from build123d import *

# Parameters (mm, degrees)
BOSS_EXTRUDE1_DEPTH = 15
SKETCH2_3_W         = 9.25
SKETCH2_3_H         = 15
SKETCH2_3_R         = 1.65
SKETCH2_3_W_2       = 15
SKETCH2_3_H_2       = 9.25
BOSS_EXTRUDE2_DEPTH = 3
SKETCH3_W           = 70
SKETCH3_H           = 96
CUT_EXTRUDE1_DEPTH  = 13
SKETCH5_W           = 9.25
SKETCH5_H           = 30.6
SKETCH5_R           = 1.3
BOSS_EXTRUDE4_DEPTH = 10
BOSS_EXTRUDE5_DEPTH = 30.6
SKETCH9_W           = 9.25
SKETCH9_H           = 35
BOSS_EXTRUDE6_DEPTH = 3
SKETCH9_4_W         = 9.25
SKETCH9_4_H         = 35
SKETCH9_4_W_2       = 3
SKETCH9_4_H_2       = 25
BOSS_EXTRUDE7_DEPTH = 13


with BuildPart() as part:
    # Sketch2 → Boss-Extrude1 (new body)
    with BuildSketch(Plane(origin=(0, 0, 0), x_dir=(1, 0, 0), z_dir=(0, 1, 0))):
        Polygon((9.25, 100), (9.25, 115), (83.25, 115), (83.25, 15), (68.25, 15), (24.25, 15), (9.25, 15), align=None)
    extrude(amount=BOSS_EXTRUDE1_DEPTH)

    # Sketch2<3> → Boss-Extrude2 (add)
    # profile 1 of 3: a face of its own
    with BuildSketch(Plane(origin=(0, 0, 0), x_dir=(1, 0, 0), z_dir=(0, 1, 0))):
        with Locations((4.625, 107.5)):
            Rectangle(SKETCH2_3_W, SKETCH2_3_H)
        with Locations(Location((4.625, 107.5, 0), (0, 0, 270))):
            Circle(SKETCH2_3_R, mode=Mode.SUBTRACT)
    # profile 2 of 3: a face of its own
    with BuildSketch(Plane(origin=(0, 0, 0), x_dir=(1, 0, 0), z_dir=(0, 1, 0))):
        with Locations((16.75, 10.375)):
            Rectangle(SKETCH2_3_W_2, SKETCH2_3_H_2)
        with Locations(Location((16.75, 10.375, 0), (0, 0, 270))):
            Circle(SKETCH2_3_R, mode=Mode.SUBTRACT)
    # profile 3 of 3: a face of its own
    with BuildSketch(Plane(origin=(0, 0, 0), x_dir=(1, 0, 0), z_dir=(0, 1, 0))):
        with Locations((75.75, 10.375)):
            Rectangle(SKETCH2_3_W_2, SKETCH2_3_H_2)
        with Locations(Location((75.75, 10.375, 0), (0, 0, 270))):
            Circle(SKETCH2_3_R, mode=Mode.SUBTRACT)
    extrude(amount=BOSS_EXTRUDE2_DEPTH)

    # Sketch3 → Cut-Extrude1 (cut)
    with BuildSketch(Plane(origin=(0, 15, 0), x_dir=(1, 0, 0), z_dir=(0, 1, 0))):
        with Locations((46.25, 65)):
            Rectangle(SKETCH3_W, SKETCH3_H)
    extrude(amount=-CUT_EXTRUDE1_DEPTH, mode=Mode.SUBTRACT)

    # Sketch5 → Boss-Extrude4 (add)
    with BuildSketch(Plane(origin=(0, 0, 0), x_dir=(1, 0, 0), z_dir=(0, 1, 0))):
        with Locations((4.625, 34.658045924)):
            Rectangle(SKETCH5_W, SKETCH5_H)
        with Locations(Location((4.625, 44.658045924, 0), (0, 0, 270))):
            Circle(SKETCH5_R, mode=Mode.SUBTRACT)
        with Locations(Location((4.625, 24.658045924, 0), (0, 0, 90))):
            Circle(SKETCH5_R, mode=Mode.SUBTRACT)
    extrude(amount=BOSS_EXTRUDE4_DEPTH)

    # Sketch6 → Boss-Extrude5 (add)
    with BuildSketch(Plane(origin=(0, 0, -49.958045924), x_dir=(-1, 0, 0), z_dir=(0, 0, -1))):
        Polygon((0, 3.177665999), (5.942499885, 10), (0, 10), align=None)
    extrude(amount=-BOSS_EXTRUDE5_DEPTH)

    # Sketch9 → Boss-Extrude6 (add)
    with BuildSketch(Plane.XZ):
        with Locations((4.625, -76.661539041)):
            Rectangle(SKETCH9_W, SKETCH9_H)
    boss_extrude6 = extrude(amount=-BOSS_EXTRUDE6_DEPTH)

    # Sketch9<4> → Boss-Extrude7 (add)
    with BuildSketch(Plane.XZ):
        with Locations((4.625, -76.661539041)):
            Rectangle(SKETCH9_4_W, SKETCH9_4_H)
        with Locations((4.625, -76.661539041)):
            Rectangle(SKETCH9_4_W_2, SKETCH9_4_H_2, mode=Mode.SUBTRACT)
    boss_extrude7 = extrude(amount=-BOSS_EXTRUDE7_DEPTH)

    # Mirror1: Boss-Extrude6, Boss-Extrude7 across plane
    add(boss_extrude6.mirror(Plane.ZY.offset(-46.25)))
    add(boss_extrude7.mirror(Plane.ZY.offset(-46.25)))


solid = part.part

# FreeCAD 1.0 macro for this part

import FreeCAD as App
import Part
import Sketcher

doc = App.newDocument("Part")
params = doc.addObject("Spreadsheet::Sheet", "Params")
for row, (alias, value) in enumerate([
    ("sketch1_width", "74 mm"),
    ("sketch1_height", "100 mm"),
    ("pad1_length", "15 mm"),
    ("sketch2_diameter", "3.3 mm"),
    ("sketch2_width", "15 mm"),
    ("sketch2_width2", "9.25 mm"),
    ("pad2_length", "3 mm"),
    ("sketch3_width", "70 mm"),
    ("sketch3_height", "96 mm"),
    ("pocket1_length", "13 mm"),
    ("sketch4_diameter", "2.6 mm"),
    ("sketch4_height", "30.6 mm"),
    ("sketch4_width", "9.25 mm"),
    ("pad3_length", "10 mm"),
    ("pad4_length", "30.6 mm"),
    ("sketch6_height", "35 mm"),
    ("sketch6_width", "9.25 mm"),
    ("pad5_length", "3 mm"),
    ("sketch7_width", "3 mm"),
    ("sketch7_height", "35 mm"),
    ("sketch7_height2", "25 mm"),
    ("sketch7_width2", "9.25 mm"),
    ("pad6_length", "13 mm"),
], start=1):
    params.set(f"A{row}", alias)
    params.set(f"B{row}", "=" + value)
    params.setAlias(f"B{row}", alias)

body = doc.addObject("PartDesign::Body", "Body")

# Sketch on XZ plane
sketch1 = body.newObject("Sketcher::SketchObject", "Sketch")
sketch1.AttachmentSupport = (doc.getObject("XZ_Plane"), [""])
sketch1.MapMode = "FlatFace"
sketch1.addGeometry(Part.LineSegment(App.Vector(9, -115, 0), App.Vector(9, -15, 0)), False)
sketch1.addGeometry(Part.LineSegment(App.Vector(9, -15, 0), App.Vector(83, -15, 0)), False)
sketch1.addGeometry(Part.LineSegment(App.Vector(83, -15, 0), App.Vector(83, -115, 0)), False)
sketch1.addGeometry(Part.LineSegment(App.Vector(83, -115, 0), App.Vector(9, -115, 0)), False)
sketch1.addConstraint(Sketcher.Constraint("Coincident", 0, 2, 1, 1))
sketch1.addConstraint(Sketcher.Constraint("Coincident", 1, 2, 2, 1))
sketch1.addConstraint(Sketcher.Constraint("Coincident", 2, 2, 3, 1))
sketch1.addConstraint(Sketcher.Constraint("Coincident", 3, 2, 0, 1))
sketch1.addConstraint(Sketcher.Constraint("Vertical", 0))
sketch1.addConstraint(Sketcher.Constraint("Horizontal", 1))
sketch1.addConstraint(Sketcher.Constraint("Vertical", 2))
sketch1.addConstraint(Sketcher.Constraint("Horizontal", 3))
sketch1.addConstraint(Sketcher.Constraint("DistanceX", 1, 1, 1, 2, 74.0))
sketch1.addConstraint(Sketcher.Constraint("DistanceY", 0, 1, 0, 2, 100.0))
sketch1.addConstraint(Sketcher.Constraint("DistanceY", 0, 2, -1, 1, 15.0))
sketch1.addConstraint(Sketcher.Constraint("DistanceX", -1, 1, 0, 2, 9.25))
sketch1.setExpression("Constraints[8]", "Params.sketch1_width")
sketch1.setExpression("Constraints[9]", "Params.sketch1_height")
pad1 = body.newObject("PartDesign::Pad", "Pad")
pad1.Profile = sketch1
pad1.setExpression("Length", "Params.pad1_length")
pad1.Reversed = True

# Sketch on XZ plane
sketch2 = body.newObject("Sketcher::SketchObject", "Sketch001")
sketch2.AttachmentSupport = (doc.getObject("XZ_Plane"), [""])
sketch2.MapMode = "FlatFace"
sketch2.addGeometry(Part.LineSegment(App.Vector(0, -115, 0), App.Vector(0, -100, 0)), False)
sketch2.addGeometry(Part.LineSegment(App.Vector(0, -100, 0), App.Vector(9.2, -100, 0)), False)
sketch2.addGeometry(Part.LineSegment(App.Vector(9.2, -100, 0), App.Vector(9.2, -115, 0)), False)
sketch2.addGeometry(Part.LineSegment(App.Vector(9.2, -115, 0), App.Vector(0, -115, 0)), False)
sketch2.addGeometry(Part.Circle(App.Vector(4.6, -107.5, 0), App.Vector(0, 0, 1), 1.6), False)
sketch2.addGeometry(Part.LineSegment(App.Vector(9.2, -15, 0), App.Vector(9.2, -5.8, 0)), False)
sketch2.addGeometry(Part.LineSegment(App.Vector(9.2, -5.8, 0), App.Vector(24.2, -5.8, 0)), False)
sketch2.addGeometry(Part.LineSegment(App.Vector(24.2, -5.8, 0), App.Vector(24.2, -15, 0)), False)
sketch2.addGeometry(Part.LineSegment(App.Vector(24.2, -15, 0), App.Vector(9.2, -15, 0)), False)
sketch2.addGeometry(Part.Circle(App.Vector(16.8, -10.4, 0), App.Vector(0, 0, 1), 1.6), False)
sketch2.addGeometry(Part.LineSegment(App.Vector(68.2, -15, 0), App.Vector(68.2, -5.8, 0)), False)
sketch2.addGeometry(Part.LineSegment(App.Vector(68.2, -5.8, 0), App.Vector(83.2, -5.8, 0)), False)
sketch2.addGeometry(Part.LineSegment(App.Vector(83.2, -5.8, 0), App.Vector(83.2, -15, 0)), False)
sketch2.addGeometry(Part.LineSegment(App.Vector(83.2, -15, 0), App.Vector(68.2, -15, 0)), False)
sketch2.addGeometry(Part.Circle(App.Vector(75.8, -10.4, 0), App.Vector(0, 0, 1), 1.6), False)
sketch2.addConstraint(Sketcher.Constraint("Coincident", 0, 2, 1, 1))
sketch2.addConstraint(Sketcher.Constraint("Coincident", 1, 2, 2, 1))
sketch2.addConstraint(Sketcher.Constraint("Coincident", 2, 2, 3, 1))
sketch2.addConstraint(Sketcher.Constraint("Coincident", 3, 2, 0, 1))
sketch2.addConstraint(Sketcher.Constraint("Coincident", 5, 2, 6, 1))
sketch2.addConstraint(Sketcher.Constraint("Coincident", 6, 2, 7, 1))
sketch2.addConstraint(Sketcher.Constraint("Coincident", 7, 2, 8, 1))
sketch2.addConstraint(Sketcher.Constraint("Coincident", 8, 2, 5, 1))
sketch2.addConstraint(Sketcher.Constraint("Coincident", 10, 2, 11, 1))
sketch2.addConstraint(Sketcher.Constraint("Coincident", 11, 2, 12, 1))
sketch2.addConstraint(Sketcher.Constraint("Coincident", 12, 2, 13, 1))
sketch2.addConstraint(Sketcher.Constraint("Coincident", 13, 2, 10, 1))
sketch2.addConstraint(Sketcher.Constraint("Vertical", 0))
sketch2.addConstraint(Sketcher.Constraint("Horizontal", 1))
sketch2.addConstraint(Sketcher.Constraint("Vertical", 2))
sketch2.addConstraint(Sketcher.Constraint("Horizontal", 3))
sketch2.addConstraint(Sketcher.Constraint("Vertical", 5))
sketch2.addConstraint(Sketcher.Constraint("Horizontal", 6))
sketch2.addConstraint(Sketcher.Constraint("Vertical", 7))
sketch2.addConstraint(Sketcher.Constraint("Horizontal", 8))
sketch2.addConstraint(Sketcher.Constraint("Vertical", 10))
sketch2.addConstraint(Sketcher.Constraint("Horizontal", 11))
sketch2.addConstraint(Sketcher.Constraint("Vertical", 12))
sketch2.addConstraint(Sketcher.Constraint("Horizontal", 13))
sketch2.addConstraint(Sketcher.Constraint("Equal", 4, 9))
sketch2.addConstraint(Sketcher.Constraint("Equal", 9, 14))
sketch2.addConstraint(Sketcher.Constraint("PointOnObject", 0, 2, -2))
sketch2.addConstraint(Sketcher.Constraint("Horizontal", 9, 3, 14, 3))
sketch2.addConstraint(Sketcher.Constraint("Horizontal", 6, 2, 10, 2))
sketch2.addConstraint(Sketcher.Constraint("Horizontal", 8, 2, 12, 2))
sketch2.addConstraint(Sketcher.Constraint("Vertical", 2, 2, 5, 2))
sketch2.addConstraint(Sketcher.Constraint("Equal", 8, 11))
sketch2.addConstraint(Sketcher.Constraint("Equal", 13, 0))
sketch2.addConstraint(Sketcher.Constraint("Equal", 3, 5))
sketch2.addConstraint(Sketcher.Constraint("Diameter", 4, 3.3))
sketch2.addConstraint(Sketcher.Constraint("DistanceX", 6, 1, 6, 2, 15.0))
sketch2.addConstraint(Sketcher.Constraint("DistanceY", 0, 2, -1, 1, 100.0))
sketch2.addConstraint(Sketcher.Constraint("DistanceY", 7, 2, -1, 1, 15.0))
sketch2.addConstraint(Sketcher.Constraint("DistanceX", 9, 3, 14, 3, 59.0))
sketch2.addConstraint(Sketcher.Constraint("DistanceX", 6, 2, 10, 2, 44.0))
sketch2.addConstraint(Sketcher.Constraint("DistanceX", 1, 1, 1, 2, 9.25))
sketch2.addConstraint(Sketcher.Constraint("DistanceY", 4, 3, -1, 1, 107.5))
sketch2.addConstraint(Sketcher.Constraint("DistanceX", 1, 2, 9, 3, 7.5))
sketch2.addConstraint(Sketcher.Constraint("DistanceX", -1, 1, 4, 3, 4.625))
sketch2.addConstraint(Sketcher.Constraint("DistanceY", 9, 3, -1, 1, 10.375))
sketch2.setExpression("Constraints[34]", "Params.sketch2_diameter")
sketch2.setExpression("Constraints[35]", "Params.sketch2_width")
sketch2.setExpression("Constraints[40]", "Params.sketch2_width2")
pad2 = body.newObject("PartDesign::Pad", "Pad001")
pad2.Profile = sketch2
pad2.setExpression("Length", "Params.pad2_length")
pad2.Reversed = True

# Sketch on XZ plane
sketch3 = body.newObject("Sketcher::SketchObject", "Sketch002")
sketch3.AttachmentSupport = (doc.getObject("XZ_Plane"), [""])
sketch3.MapMode = "FlatFace"
sketch3.AttachmentOffset = App.Placement(App.Vector(0, 0, -15), App.Rotation())
sketch3.addGeometry(Part.LineSegment(App.Vector(11, -113, 0), App.Vector(11, -17, 0)), False)
sketch3.addGeometry(Part.LineSegment(App.Vector(11, -17, 0), App.Vector(81, -17, 0)), False)
sketch3.addGeometry(Part.LineSegment(App.Vector(81, -17, 0), App.Vector(81, -113, 0)), False)
sketch3.addGeometry(Part.LineSegment(App.Vector(81, -113, 0), App.Vector(11, -113, 0)), False)
sketch3.addConstraint(Sketcher.Constraint("Coincident", 0, 2, 1, 1))
sketch3.addConstraint(Sketcher.Constraint("Coincident", 1, 2, 2, 1))
sketch3.addConstraint(Sketcher.Constraint("Coincident", 2, 2, 3, 1))
sketch3.addConstraint(Sketcher.Constraint("Coincident", 3, 2, 0, 1))
sketch3.addConstraint(Sketcher.Constraint("Vertical", 0))
sketch3.addConstraint(Sketcher.Constraint("Horizontal", 1))
sketch3.addConstraint(Sketcher.Constraint("Vertical", 2))
sketch3.addConstraint(Sketcher.Constraint("Horizontal", 3))
sketch3.addConstraint(Sketcher.Constraint("DistanceX", 1, 1, 1, 2, 70.0))
sketch3.addConstraint(Sketcher.Constraint("DistanceY", 0, 1, 0, 2, 96.0))
sketch3.addConstraint(Sketcher.Constraint("DistanceY", 0, 2, -1, 1, 17.0))
sketch3.addConstraint(Sketcher.Constraint("DistanceX", -1, 1, 0, 2, 11.25))
sketch3.setExpression("Constraints[8]", "Params.sketch3_width")
sketch3.setExpression("Constraints[9]", "Params.sketch3_height")
pocket1 = body.newObject("PartDesign::Pocket", "Pocket")
pocket1.Profile = sketch3
pocket1.setExpression("Length", "Params.pocket1_length")
pocket1.Reversed = True

# Sketch on XZ plane
sketch4 = body.newObject("Sketcher::SketchObject", "Sketch003")
sketch4.AttachmentSupport = (doc.getObject("XZ_Plane"), [""])
sketch4.MapMode = "FlatFace"
sketch4.addGeometry(Part.LineSegment(App.Vector(0, -50, 0), App.Vector(0, -19.4, 0)), False)
sketch4.addGeometry(Part.LineSegment(App.Vector(0, -19.4, 0), App.Vector(9.2, -19.4, 0)), False)
sketch4.addGeometry(Part.LineSegment(App.Vector(9.2, -19.4, 0), App.Vector(9.2, -50, 0)), False)
sketch4.addGeometry(Part.LineSegment(App.Vector(9.2, -50, 0), App.Vector(0, -50, 0)), False)
sketch4.addGeometry(Part.Circle(App.Vector(4.6, -24.7, 0), App.Vector(0, 0, 1), 1.3), False)
sketch4.addGeometry(Part.Circle(App.Vector(4.6, -44.7, 0), App.Vector(0, 0, 1), 1.3), False)
sketch4.addConstraint(Sketcher.Constraint("Coincident", 0, 2, 1, 1))
sketch4.addConstraint(Sketcher.Constraint("Coincident", 1, 2, 2, 1))
sketch4.addConstraint(Sketcher.Constraint("Coincident", 2, 2, 3, 1))
sketch4.addConstraint(Sketcher.Constraint("Coincident", 3, 2, 0, 1))
sketch4.addConstraint(Sketcher.Constraint("Vertical", 0))
sketch4.addConstraint(Sketcher.Constraint("Horizontal", 1))
sketch4.addConstraint(Sketcher.Constraint("Vertical", 2))
sketch4.addConstraint(Sketcher.Constraint("Horizontal", 3))
sketch4.addConstraint(Sketcher.Constraint("Equal", 4, 5))
sketch4.addConstraint(Sketcher.Constraint("PointOnObject", 0, 2, -2))
sketch4.addConstraint(Sketcher.Constraint("Vertical", 4, 3, 5, 3))
sketch4.addConstraint(Sketcher.Constraint("Diameter", 4, 2.6))
sketch4.addConstraint(Sketcher.Constraint("DistanceY", 0, 1, 0, 2, 30.6))
sketch4.addConstraint(Sketcher.Constraint("DistanceY", 5, 3, 4, 3, 20.0))
sketch4.addConstraint(Sketcher.Constraint("DistanceX", 1, 1, 1, 2, 9.25))
sketch4.addConstraint(Sketcher.Constraint("DistanceY", 4, 3, 0, 2, 5.3))
sketch4.addConstraint(Sketcher.Constraint("DistanceX", -1, 1, 4, 3, 4.625))
sketch4.addConstraint(Sketcher.Constraint("DistanceY", 4, 3, -1, 1, 24.658046))
sketch4.setExpression("Constraints[11]", "Params.sketch4_diameter")
sketch4.setExpression("Constraints[12]", "Params.sketch4_height")
sketch4.setExpression("Constraints[14]", "Params.sketch4_width")
pad3 = body.newObject("PartDesign::Pad", "Pad002")
pad3.Profile = sketch4
pad3.setExpression("Length", "Params.pad3_length")
pad3.Reversed = True

# Sketch on XY plane
sketch5 = body.newObject("Sketcher::SketchObject", "Sketch004")
sketch5.AttachmentSupport = (doc.getObject("XY_Plane"), [""])
sketch5.MapMode = "FlatFace"
sketch5.AttachmentOffset = App.Placement(App.Vector(0, 0, -49.958046), App.Rotation())
sketch5.addGeometry(Part.LineSegment(App.Vector(0, 3, 0), App.Vector(-6, 10, 0)), False)
sketch5.addGeometry(Part.LineSegment(App.Vector(-6, 10, 0), App.Vector(0, 10, 0)), False)
sketch5.addGeometry(Part.LineSegment(App.Vector(0, 10, 0), App.Vector(0, 3, 0)), False)
sketch5.addConstraint(Sketcher.Constraint("Coincident", 0, 2, 1, 1))
sketch5.addConstraint(Sketcher.Constraint("Coincident", 1, 2, 2, 1))
sketch5.addConstraint(Sketcher.Constraint("Coincident", 2, 2, 0, 1))
sketch5.addConstraint(Sketcher.Constraint("Horizontal", 1))
sketch5.addConstraint(Sketcher.Constraint("Vertical", 2))
sketch5.addConstraint(Sketcher.Constraint("PointOnObject", 1, 2, -2))
sketch5.addConstraint(Sketcher.Constraint("DistanceY", -1, 1, 0, 2, 10.0))
sketch5.addConstraint(Sketcher.Constraint("DistanceX", 1, 1, 1, 2, 5.9425))
sketch5.addConstraint(Sketcher.Constraint("DistanceY", 2, 2, 2, 1, 6.822334))
pad4 = body.newObject("PartDesign::Pad", "Pad003")
pad4.Profile = sketch5
pad4.setExpression("Length", "Params.pad4_length")

# Sketch on XZ plane
sketch6 = body.newObject("Sketcher::SketchObject", "Sketch005")
sketch6.AttachmentSupport = (doc.getObject("XZ_Plane"), [""])
sketch6.MapMode = "FlatFace"
sketch6.addGeometry(Part.LineSegment(App.Vector(0, -59, 0), App.Vector(0, -94, 0)), False)
sketch6.addGeometry(Part.LineSegment(App.Vector(0, -94, 0), App.Vector(9, -94, 0)), False)
sketch6.addGeometry(Part.LineSegment(App.Vector(9, -94, 0), App.Vector(9, -59, 0)), False)
sketch6.addGeometry(Part.LineSegment(App.Vector(9, -59, 0), App.Vector(0, -59, 0)), False)
sketch6.addConstraint(Sketcher.Constraint("Coincident", 0, 2, 1, 1))
sketch6.addConstraint(Sketcher.Constraint("Coincident", 1, 2, 2, 1))
sketch6.addConstraint(Sketcher.Constraint("Coincident", 2, 2, 3, 1))
sketch6.addConstraint(Sketcher.Constraint("Coincident", 3, 2, 0, 1))
sketch6.addConstraint(Sketcher.Constraint("Vertical", 0))
sketch6.addConstraint(Sketcher.Constraint("Horizontal", 1))
sketch6.addConstraint(Sketcher.Constraint("Vertical", 2))
sketch6.addConstraint(Sketcher.Constraint("Horizontal", 3))
sketch6.addConstraint(Sketcher.Constraint("PointOnObject", 0, 2, -2))
sketch6.addConstraint(Sketcher.Constraint("DistanceY", 0, 2, 0, 1, 35.0))
sketch6.addConstraint(Sketcher.Constraint("DistanceX", 1, 1, 1, 2, 9.25))
sketch6.addConstraint(Sketcher.Constraint("DistanceY", 0, 2, -1, 1, 94.161539))
sketch6.setExpression("Constraints[9]", "Params.sketch6_height")
sketch6.setExpression("Constraints[10]", "Params.sketch6_width")
pad5 = body.newObject("PartDesign::Pad", "Pad004")
pad5.Profile = sketch6
pad5.setExpression("Length", "Params.pad5_length")
pad5.Reversed = True

# Sketch on XZ plane
sketch7 = body.newObject("Sketcher::SketchObject", "Sketch006")
sketch7.AttachmentSupport = (doc.getObject("XZ_Plane"), [""])
sketch7.MapMode = "FlatFace"
sketch7.addGeometry(Part.LineSegment(App.Vector(0, -59.2, 0), App.Vector(0, -94.2, 0)), False)
sketch7.addGeometry(Part.LineSegment(App.Vector(0, -94.2, 0), App.Vector(9.2, -94.2, 0)), False)
sketch7.addGeometry(Part.LineSegment(App.Vector(9.2, -94.2, 0), App.Vector(9.2, -59.2, 0)), False)
sketch7.addGeometry(Part.LineSegment(App.Vector(9.2, -59.2, 0), App.Vector(0, -59.2, 0)), False)
sketch7.addGeometry(Part.LineSegment(App.Vector(6.1, -89.2, 0), App.Vector(3.1, -89.2, 0)), False)
sketch7.addGeometry(Part.LineSegment(App.Vector(3.1, -89.2, 0), App.Vector(3.1, -64.2, 0)), False)
sketch7.addGeometry(Part.LineSegment(App.Vector(3.1, -64.2, 0), App.Vector(6.1, -64.2, 0)), False)
sketch7.addGeometry(Part.LineSegment(App.Vector(6.1, -64.2, 0), App.Vector(6.1, -89.2, 0)), False)
sketch7.addConstraint(Sketcher.Constraint("Coincident", 0, 2, 1, 1))
sketch7.addConstraint(Sketcher.Constraint("Coincident", 1, 2, 2, 1))
sketch7.addConstraint(Sketcher.Constraint("Coincident", 2, 2, 3, 1))
sketch7.addConstraint(Sketcher.Constraint("Coincident", 3, 2, 0, 1))
sketch7.addConstraint(Sketcher.Constraint("Coincident", 4, 2, 5, 1))
sketch7.addConstraint(Sketcher.Constraint("Coincident", 5, 2, 6, 1))
sketch7.addConstraint(Sketcher.Constraint("Coincident", 6, 2, 7, 1))
sketch7.addConstraint(Sketcher.Constraint("Coincident", 7, 2, 4, 1))
sketch7.addConstraint(Sketcher.Constraint("Vertical", 0))
sketch7.addConstraint(Sketcher.Constraint("Horizontal", 1))
sketch7.addConstraint(Sketcher.Constraint("Vertical", 2))
sketch7.addConstraint(Sketcher.Constraint("Horizontal", 3))
sketch7.addConstraint(Sketcher.Constraint("Horizontal", 4))
sketch7.addConstraint(Sketcher.Constraint("Vertical", 5))
sketch7.addConstraint(Sketcher.Constraint("Horizontal", 6))
sketch7.addConstraint(Sketcher.Constraint("Vertical", 7))
sketch7.addConstraint(Sketcher.Constraint("PointOnObject", 0, 2, -2))
sketch7.addConstraint(Sketcher.Constraint("DistanceX", 4, 2, 4, 1, 3.0))
sketch7.addConstraint(Sketcher.Constraint("DistanceY", 0, 2, 0, 1, 35.0))
sketch7.addConstraint(Sketcher.Constraint("DistanceY", 5, 1, 5, 2, 25.0))
sketch7.addConstraint(Sketcher.Constraint("DistanceY", 0, 2, 4, 2, 5.0))
sketch7.addConstraint(Sketcher.Constraint("DistanceX", 1, 1, 1, 2, 9.25))
sketch7.addConstraint(Sketcher.Constraint("DistanceX", -1, 1, 4, 2, 3.125))
sketch7.addConstraint(Sketcher.Constraint("DistanceY", 0, 2, -1, 1, 94.161539))
sketch7.setExpression("Constraints[17]", "Params.sketch7_width")
sketch7.setExpression("Constraints[18]", "Params.sketch7_height")
sketch7.setExpression("Constraints[19]", "Params.sketch7_height2")
sketch7.setExpression("Constraints[21]", "Params.sketch7_width2")
pad6 = body.newObject("PartDesign::Pad", "Pad005")
pad6.Profile = sketch7
pad6.setExpression("Length", "Params.pad6_length")
pad6.Reversed = True
doc.recompute()

datumplane = body.newObject("PartDesign::Plane", "DatumPlane")
datumplane.AttachmentSupport = (doc.getObject("YZ_Plane"), [""])
datumplane.MapMode = "FlatFace"
datumplane.AttachmentOffset = App.Placement(App.Vector(0, 0, 46.25), App.Rotation())
mirrored = body.newObject("PartDesign::Mirrored", "Mirrored")
mirrored.Originals = [pad5, pad6]
mirrored.MirrorPlane = (datumplane, [""])
body.Tip = mirrored

doc.recompute()
